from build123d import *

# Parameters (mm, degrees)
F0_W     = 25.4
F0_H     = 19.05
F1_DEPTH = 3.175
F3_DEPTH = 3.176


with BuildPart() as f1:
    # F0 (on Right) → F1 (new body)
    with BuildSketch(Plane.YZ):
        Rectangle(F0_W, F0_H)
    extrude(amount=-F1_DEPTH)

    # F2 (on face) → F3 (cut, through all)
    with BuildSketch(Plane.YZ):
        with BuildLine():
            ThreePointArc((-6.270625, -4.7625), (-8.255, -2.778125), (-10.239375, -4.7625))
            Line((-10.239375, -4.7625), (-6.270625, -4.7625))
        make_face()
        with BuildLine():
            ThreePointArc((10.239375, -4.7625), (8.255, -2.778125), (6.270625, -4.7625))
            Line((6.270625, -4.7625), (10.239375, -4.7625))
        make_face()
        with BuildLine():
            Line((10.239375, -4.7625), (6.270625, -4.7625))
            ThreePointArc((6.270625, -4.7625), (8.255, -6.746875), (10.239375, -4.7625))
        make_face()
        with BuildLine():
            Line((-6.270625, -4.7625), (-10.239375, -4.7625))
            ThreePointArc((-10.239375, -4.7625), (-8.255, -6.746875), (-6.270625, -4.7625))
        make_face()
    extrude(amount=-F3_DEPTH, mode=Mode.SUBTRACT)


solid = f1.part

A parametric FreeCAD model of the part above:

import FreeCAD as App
import Part
import Sketcher
from FreeCAD import Vector
Q = App.Units.Quantity


def add_polygon(sketch, points):
    """Adds a closed chain of lines whose ends are joined by coincident constraints."""
    first, n = sketch.GeometryCount, len(points)
    for a, b in zip(points, points[1:] + points[:1]):
        sketch.addGeometry(Part.LineSegment(App.Vector(*a, 0), App.Vector(*b, 0)), False)
    for i in range(n):
        sketch.addConstraint(Sketcher.Constraint("Coincident", first + i, 2, first + (i + 1) % n, 1))

doc = App.newDocument("Part")
body = doc.addObject("PartDesign::Body", "Body")

# Sketch on YZ plane
sketch1 = body.newObject("Sketcher::SketchObject", "Sketch")
sketch1.AttachmentSupport = (doc.getObject("YZ_Plane"), [""])
sketch1.MapMode = "FlatFace"
add_polygon(sketch1, [(-13, 10), (-13, -10), (13, -10), (13, 10)])  # lines 0-3
sketch1.addConstraint(Sketcher.Constraint("Vertical", 0))
sketch1.addConstraint(Sketcher.Constraint("Horizontal", 1))
sketch1.addConstraint(Sketcher.Constraint("Vertical", 2))
sketch1.addConstraint(Sketcher.Constraint("Horizontal", 3))
sketch1.addConstraint(Sketcher.Constraint("Symmetric", 0, 2, 2, 2, -1, 1))
sketch1.addConstraint(Sketcher.Constraint("DistanceX", 1, 1, 1, 2, Q("1 in")))
sketch1.addConstraint(Sketcher.Constraint("DistanceY", 0, 2, 0, 1, Q("0.75 in")))
pad1 = body.newObject("PartDesign::Pad", "Pad")
pad1.Profile = sketch1
pad1.Length = Q("0.125 in")
pad1.Reversed = True

# Sketch on YZ plane
sketch2 = body.newObject("Sketcher::SketchObject", "Sketch001")
sketch2.AttachmentSupport = (doc.getObject("YZ_Plane"), [""])
sketch2.MapMode = "FlatFace"
sketch2.addGeometry(Part.Circle(Vector(-8.3, -4.8, 0), Vector(0, 0, 1), 2), False)
sketch2.addGeometry(Part.Circle(Vector(8.3, -4.8, 0), Vector(0, 0, 1), 2), False)
sketch2.addConstraint(Sketcher.Constraint("Equal", 0, 1))
sketch2.addConstraint(Sketcher.Constraint("Symmetric", 0, 3, 1, 3, -2))
sketch2.addConstraint(Sketcher.Constraint("Diameter", 0, Q("0.15625 in")))
sketch2.addConstraint(Sketcher.Constraint("DistanceX", 0, 3, 1, 3, Q("0.65 in")))
sketch2.addConstraint(Sketcher.Constraint("DistanceY", 0, 3, -1, 1, Q("0.1875 in")))
pocket1 = body.newObject("PartDesign::Pocket", "Pocket")
pocket1.Profile = sketch2
pocket1.Type = "ThroughAll"

doc.recompute()
